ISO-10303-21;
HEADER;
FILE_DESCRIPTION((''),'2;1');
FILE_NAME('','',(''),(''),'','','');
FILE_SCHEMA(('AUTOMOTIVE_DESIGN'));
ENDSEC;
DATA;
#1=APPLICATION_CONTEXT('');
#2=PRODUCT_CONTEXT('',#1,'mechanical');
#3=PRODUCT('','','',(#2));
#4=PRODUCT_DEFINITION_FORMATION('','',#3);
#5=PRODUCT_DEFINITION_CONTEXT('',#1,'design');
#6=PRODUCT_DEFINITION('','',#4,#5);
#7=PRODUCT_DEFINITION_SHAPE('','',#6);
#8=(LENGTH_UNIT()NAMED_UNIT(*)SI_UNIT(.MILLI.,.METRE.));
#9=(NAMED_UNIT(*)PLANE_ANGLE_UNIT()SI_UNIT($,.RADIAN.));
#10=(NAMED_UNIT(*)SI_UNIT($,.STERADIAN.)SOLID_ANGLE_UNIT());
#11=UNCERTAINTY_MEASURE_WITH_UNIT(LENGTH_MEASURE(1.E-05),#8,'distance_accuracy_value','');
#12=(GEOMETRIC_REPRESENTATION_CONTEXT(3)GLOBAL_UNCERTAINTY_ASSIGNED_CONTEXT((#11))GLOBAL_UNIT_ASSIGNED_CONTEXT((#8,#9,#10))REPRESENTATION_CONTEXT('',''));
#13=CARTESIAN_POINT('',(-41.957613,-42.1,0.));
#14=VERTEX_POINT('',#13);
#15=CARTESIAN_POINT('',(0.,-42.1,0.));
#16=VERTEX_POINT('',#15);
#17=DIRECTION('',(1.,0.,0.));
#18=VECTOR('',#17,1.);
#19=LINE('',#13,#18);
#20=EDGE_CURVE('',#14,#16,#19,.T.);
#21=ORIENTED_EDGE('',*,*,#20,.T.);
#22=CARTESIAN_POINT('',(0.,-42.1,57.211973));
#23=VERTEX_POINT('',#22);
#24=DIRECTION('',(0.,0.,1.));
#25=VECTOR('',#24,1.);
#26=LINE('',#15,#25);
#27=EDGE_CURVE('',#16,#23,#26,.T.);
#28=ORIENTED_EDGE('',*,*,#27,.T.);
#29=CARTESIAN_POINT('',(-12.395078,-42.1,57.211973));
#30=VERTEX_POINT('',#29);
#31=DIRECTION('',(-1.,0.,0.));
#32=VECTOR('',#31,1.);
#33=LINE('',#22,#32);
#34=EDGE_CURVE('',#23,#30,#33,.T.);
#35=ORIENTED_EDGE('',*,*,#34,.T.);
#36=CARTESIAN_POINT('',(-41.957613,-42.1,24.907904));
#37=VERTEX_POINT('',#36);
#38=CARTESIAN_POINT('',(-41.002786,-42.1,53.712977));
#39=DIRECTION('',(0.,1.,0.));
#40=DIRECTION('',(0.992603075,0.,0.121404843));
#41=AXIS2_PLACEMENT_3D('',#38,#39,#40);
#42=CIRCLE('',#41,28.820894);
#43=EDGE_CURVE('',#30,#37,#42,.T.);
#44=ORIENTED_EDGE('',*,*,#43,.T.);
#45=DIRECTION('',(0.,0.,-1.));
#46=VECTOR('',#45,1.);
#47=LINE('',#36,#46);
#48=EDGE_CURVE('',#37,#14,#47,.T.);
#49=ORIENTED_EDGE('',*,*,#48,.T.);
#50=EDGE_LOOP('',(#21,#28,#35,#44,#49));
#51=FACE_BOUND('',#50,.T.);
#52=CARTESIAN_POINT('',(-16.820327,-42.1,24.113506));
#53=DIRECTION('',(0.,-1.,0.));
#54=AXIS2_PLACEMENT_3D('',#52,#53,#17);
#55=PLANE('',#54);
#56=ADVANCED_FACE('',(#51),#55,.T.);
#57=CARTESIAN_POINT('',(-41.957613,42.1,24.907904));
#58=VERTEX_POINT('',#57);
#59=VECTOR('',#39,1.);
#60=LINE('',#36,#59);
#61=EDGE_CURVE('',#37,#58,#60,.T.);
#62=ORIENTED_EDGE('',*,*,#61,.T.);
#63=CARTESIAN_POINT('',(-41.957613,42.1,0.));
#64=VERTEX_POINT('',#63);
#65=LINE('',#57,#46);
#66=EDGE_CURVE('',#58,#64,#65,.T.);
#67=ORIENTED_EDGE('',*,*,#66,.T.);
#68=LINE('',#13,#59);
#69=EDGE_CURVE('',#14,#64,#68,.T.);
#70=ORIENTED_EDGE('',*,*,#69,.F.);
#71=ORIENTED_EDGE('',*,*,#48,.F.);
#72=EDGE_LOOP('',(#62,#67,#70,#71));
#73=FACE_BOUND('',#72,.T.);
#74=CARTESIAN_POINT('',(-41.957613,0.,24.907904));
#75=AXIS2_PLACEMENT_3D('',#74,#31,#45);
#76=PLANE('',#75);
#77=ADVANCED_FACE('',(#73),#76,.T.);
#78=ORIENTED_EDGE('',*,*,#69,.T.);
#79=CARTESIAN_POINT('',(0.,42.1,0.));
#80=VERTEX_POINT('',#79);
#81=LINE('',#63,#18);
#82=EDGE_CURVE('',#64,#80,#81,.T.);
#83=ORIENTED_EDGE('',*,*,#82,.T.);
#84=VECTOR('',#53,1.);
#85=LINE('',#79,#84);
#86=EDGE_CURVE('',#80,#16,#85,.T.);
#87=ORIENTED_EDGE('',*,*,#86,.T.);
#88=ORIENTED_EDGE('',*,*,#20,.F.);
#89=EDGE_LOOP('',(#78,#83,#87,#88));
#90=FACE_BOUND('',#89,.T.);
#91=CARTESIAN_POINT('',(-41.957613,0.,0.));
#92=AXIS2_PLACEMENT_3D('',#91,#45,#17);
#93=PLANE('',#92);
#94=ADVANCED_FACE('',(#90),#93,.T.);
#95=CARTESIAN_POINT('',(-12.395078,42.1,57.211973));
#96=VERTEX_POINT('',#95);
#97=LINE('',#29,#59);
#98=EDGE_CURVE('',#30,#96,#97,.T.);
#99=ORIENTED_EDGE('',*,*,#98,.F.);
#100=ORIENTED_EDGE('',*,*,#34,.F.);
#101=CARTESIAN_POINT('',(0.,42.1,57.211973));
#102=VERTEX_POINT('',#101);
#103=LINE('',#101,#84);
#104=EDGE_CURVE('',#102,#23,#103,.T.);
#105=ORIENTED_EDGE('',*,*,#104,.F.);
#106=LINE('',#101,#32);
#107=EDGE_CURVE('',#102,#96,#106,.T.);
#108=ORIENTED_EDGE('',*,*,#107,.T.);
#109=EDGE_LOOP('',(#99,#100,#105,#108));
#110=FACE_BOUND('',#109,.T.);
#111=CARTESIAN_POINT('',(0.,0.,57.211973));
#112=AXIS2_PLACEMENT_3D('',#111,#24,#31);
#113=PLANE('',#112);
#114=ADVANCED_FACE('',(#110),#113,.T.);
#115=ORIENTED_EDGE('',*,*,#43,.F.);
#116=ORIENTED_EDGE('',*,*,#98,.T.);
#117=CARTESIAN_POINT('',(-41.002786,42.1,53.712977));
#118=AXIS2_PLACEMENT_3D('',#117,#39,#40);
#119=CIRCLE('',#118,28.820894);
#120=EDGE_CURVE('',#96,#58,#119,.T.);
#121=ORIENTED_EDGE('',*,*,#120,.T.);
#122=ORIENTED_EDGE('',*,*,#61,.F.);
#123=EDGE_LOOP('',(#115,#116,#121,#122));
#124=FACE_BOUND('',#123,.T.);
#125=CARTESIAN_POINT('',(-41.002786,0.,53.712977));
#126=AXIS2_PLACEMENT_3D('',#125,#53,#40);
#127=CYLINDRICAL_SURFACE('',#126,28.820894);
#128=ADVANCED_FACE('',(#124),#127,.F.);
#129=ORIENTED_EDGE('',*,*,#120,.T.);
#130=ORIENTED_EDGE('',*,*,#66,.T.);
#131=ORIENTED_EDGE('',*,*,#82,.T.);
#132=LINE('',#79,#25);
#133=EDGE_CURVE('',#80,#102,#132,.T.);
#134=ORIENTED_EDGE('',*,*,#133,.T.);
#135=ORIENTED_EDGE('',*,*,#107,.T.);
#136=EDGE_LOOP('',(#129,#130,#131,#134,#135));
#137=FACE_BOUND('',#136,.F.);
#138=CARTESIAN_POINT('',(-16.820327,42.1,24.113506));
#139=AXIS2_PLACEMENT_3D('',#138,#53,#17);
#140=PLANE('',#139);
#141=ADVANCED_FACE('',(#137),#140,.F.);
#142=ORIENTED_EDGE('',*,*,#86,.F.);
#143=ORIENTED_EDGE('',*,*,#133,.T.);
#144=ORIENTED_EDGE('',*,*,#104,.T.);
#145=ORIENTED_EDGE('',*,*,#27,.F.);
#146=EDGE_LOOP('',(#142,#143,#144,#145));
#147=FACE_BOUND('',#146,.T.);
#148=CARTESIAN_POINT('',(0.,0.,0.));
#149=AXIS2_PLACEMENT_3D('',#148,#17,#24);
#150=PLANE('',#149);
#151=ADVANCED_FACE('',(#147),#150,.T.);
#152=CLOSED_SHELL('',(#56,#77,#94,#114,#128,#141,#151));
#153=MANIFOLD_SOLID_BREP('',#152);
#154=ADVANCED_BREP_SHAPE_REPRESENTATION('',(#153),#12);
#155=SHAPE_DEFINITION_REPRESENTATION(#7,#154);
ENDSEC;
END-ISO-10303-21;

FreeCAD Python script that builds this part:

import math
import FreeCAD as App
import Part
import Sketcher

doc = App.newDocument("Part")
body = doc.addObject("PartDesign::Body", "Body")

sketch1 = body.newObject("Sketcher::SketchObject", "Sketch")
sketch1.AttachmentSupport = (doc.getObject("XZ_Plane"), [""])
sketch1.MapMode = "FlatFace"
sketch1.addGeometry(Part.LineSegment(App.Vector(-41.957613, 0, 0), App.Vector(0, 0, 0)), False)
sketch1.addGeometry(Part.LineSegment(App.Vector(0, 0, 0), App.Vector(0, 57.211973, 0)), False)
sketch1.addGeometry(Part.LineSegment(App.Vector(0, 57.211973, 0), App.Vector(-12.395078, 57.211973, 0)), False)
sketch1.addGeometry(Part.ArcOfCircle(Part.Circle(App.Vector(-41.002786, 53.712977, 0), App.Vector(0, 0, 1), 28.820894), math.radians(-91.898539), math.radians(6.973187)), False)
sketch1.addGeometry(Part.LineSegment(App.Vector(-41.957613, 24.907904, 0), App.Vector(-41.957613, 0, 0)), False)
sketch1.addConstraint(Sketcher.Constraint("Coincident", 0, 2, 1, 1))
sketch1.addConstraint(Sketcher.Constraint("Coincident", 1, 2, 2, 1))
sketch1.addConstraint(Sketcher.Constraint("Coincident", 2, 2, 3, 2))
sketch1.addConstraint(Sketcher.Constraint("Coincident", 3, 1, 4, 1))
sketch1.addConstraint(Sketcher.Constraint("Coincident", 4, 2, 0, 1))
sketch1.addConstraint(Sketcher.Constraint("Horizontal", 0))
sketch1.addConstraint(Sketcher.Constraint("Vertical", 1))
sketch1.addConstraint(Sketcher.Constraint("Horizontal", 2))
sketch1.addConstraint(Sketcher.Constraint("Vertical", 4))
sketch1.addConstraint(Sketcher.Constraint("Coincident", 0, 2, -1, 1))
sketch1.addConstraint(Sketcher.Constraint("Radius", 3, 28.820894))
sketch1.addConstraint(Sketcher.Constraint("DistanceX", 0, 1, 0, 2, 41.957613))
sketch1.addConstraint(Sketcher.Constraint("DistanceX", 2, 2, 2, 1, 12.395078))
sketch1.addConstraint(Sketcher.Constraint("DistanceY", 1, 1, 1, 2, 57.211973))
sketch1.addConstraint(Sketcher.Constraint("DistanceY", 4, 2, 4, 1, 24.907904))
pad1 = body.newObject("PartDesign::Pad", "Pad")
pad1.Profile = sketch1
pad1.Length = 84.2
pad1.Midplane = True

doc.recompute()
